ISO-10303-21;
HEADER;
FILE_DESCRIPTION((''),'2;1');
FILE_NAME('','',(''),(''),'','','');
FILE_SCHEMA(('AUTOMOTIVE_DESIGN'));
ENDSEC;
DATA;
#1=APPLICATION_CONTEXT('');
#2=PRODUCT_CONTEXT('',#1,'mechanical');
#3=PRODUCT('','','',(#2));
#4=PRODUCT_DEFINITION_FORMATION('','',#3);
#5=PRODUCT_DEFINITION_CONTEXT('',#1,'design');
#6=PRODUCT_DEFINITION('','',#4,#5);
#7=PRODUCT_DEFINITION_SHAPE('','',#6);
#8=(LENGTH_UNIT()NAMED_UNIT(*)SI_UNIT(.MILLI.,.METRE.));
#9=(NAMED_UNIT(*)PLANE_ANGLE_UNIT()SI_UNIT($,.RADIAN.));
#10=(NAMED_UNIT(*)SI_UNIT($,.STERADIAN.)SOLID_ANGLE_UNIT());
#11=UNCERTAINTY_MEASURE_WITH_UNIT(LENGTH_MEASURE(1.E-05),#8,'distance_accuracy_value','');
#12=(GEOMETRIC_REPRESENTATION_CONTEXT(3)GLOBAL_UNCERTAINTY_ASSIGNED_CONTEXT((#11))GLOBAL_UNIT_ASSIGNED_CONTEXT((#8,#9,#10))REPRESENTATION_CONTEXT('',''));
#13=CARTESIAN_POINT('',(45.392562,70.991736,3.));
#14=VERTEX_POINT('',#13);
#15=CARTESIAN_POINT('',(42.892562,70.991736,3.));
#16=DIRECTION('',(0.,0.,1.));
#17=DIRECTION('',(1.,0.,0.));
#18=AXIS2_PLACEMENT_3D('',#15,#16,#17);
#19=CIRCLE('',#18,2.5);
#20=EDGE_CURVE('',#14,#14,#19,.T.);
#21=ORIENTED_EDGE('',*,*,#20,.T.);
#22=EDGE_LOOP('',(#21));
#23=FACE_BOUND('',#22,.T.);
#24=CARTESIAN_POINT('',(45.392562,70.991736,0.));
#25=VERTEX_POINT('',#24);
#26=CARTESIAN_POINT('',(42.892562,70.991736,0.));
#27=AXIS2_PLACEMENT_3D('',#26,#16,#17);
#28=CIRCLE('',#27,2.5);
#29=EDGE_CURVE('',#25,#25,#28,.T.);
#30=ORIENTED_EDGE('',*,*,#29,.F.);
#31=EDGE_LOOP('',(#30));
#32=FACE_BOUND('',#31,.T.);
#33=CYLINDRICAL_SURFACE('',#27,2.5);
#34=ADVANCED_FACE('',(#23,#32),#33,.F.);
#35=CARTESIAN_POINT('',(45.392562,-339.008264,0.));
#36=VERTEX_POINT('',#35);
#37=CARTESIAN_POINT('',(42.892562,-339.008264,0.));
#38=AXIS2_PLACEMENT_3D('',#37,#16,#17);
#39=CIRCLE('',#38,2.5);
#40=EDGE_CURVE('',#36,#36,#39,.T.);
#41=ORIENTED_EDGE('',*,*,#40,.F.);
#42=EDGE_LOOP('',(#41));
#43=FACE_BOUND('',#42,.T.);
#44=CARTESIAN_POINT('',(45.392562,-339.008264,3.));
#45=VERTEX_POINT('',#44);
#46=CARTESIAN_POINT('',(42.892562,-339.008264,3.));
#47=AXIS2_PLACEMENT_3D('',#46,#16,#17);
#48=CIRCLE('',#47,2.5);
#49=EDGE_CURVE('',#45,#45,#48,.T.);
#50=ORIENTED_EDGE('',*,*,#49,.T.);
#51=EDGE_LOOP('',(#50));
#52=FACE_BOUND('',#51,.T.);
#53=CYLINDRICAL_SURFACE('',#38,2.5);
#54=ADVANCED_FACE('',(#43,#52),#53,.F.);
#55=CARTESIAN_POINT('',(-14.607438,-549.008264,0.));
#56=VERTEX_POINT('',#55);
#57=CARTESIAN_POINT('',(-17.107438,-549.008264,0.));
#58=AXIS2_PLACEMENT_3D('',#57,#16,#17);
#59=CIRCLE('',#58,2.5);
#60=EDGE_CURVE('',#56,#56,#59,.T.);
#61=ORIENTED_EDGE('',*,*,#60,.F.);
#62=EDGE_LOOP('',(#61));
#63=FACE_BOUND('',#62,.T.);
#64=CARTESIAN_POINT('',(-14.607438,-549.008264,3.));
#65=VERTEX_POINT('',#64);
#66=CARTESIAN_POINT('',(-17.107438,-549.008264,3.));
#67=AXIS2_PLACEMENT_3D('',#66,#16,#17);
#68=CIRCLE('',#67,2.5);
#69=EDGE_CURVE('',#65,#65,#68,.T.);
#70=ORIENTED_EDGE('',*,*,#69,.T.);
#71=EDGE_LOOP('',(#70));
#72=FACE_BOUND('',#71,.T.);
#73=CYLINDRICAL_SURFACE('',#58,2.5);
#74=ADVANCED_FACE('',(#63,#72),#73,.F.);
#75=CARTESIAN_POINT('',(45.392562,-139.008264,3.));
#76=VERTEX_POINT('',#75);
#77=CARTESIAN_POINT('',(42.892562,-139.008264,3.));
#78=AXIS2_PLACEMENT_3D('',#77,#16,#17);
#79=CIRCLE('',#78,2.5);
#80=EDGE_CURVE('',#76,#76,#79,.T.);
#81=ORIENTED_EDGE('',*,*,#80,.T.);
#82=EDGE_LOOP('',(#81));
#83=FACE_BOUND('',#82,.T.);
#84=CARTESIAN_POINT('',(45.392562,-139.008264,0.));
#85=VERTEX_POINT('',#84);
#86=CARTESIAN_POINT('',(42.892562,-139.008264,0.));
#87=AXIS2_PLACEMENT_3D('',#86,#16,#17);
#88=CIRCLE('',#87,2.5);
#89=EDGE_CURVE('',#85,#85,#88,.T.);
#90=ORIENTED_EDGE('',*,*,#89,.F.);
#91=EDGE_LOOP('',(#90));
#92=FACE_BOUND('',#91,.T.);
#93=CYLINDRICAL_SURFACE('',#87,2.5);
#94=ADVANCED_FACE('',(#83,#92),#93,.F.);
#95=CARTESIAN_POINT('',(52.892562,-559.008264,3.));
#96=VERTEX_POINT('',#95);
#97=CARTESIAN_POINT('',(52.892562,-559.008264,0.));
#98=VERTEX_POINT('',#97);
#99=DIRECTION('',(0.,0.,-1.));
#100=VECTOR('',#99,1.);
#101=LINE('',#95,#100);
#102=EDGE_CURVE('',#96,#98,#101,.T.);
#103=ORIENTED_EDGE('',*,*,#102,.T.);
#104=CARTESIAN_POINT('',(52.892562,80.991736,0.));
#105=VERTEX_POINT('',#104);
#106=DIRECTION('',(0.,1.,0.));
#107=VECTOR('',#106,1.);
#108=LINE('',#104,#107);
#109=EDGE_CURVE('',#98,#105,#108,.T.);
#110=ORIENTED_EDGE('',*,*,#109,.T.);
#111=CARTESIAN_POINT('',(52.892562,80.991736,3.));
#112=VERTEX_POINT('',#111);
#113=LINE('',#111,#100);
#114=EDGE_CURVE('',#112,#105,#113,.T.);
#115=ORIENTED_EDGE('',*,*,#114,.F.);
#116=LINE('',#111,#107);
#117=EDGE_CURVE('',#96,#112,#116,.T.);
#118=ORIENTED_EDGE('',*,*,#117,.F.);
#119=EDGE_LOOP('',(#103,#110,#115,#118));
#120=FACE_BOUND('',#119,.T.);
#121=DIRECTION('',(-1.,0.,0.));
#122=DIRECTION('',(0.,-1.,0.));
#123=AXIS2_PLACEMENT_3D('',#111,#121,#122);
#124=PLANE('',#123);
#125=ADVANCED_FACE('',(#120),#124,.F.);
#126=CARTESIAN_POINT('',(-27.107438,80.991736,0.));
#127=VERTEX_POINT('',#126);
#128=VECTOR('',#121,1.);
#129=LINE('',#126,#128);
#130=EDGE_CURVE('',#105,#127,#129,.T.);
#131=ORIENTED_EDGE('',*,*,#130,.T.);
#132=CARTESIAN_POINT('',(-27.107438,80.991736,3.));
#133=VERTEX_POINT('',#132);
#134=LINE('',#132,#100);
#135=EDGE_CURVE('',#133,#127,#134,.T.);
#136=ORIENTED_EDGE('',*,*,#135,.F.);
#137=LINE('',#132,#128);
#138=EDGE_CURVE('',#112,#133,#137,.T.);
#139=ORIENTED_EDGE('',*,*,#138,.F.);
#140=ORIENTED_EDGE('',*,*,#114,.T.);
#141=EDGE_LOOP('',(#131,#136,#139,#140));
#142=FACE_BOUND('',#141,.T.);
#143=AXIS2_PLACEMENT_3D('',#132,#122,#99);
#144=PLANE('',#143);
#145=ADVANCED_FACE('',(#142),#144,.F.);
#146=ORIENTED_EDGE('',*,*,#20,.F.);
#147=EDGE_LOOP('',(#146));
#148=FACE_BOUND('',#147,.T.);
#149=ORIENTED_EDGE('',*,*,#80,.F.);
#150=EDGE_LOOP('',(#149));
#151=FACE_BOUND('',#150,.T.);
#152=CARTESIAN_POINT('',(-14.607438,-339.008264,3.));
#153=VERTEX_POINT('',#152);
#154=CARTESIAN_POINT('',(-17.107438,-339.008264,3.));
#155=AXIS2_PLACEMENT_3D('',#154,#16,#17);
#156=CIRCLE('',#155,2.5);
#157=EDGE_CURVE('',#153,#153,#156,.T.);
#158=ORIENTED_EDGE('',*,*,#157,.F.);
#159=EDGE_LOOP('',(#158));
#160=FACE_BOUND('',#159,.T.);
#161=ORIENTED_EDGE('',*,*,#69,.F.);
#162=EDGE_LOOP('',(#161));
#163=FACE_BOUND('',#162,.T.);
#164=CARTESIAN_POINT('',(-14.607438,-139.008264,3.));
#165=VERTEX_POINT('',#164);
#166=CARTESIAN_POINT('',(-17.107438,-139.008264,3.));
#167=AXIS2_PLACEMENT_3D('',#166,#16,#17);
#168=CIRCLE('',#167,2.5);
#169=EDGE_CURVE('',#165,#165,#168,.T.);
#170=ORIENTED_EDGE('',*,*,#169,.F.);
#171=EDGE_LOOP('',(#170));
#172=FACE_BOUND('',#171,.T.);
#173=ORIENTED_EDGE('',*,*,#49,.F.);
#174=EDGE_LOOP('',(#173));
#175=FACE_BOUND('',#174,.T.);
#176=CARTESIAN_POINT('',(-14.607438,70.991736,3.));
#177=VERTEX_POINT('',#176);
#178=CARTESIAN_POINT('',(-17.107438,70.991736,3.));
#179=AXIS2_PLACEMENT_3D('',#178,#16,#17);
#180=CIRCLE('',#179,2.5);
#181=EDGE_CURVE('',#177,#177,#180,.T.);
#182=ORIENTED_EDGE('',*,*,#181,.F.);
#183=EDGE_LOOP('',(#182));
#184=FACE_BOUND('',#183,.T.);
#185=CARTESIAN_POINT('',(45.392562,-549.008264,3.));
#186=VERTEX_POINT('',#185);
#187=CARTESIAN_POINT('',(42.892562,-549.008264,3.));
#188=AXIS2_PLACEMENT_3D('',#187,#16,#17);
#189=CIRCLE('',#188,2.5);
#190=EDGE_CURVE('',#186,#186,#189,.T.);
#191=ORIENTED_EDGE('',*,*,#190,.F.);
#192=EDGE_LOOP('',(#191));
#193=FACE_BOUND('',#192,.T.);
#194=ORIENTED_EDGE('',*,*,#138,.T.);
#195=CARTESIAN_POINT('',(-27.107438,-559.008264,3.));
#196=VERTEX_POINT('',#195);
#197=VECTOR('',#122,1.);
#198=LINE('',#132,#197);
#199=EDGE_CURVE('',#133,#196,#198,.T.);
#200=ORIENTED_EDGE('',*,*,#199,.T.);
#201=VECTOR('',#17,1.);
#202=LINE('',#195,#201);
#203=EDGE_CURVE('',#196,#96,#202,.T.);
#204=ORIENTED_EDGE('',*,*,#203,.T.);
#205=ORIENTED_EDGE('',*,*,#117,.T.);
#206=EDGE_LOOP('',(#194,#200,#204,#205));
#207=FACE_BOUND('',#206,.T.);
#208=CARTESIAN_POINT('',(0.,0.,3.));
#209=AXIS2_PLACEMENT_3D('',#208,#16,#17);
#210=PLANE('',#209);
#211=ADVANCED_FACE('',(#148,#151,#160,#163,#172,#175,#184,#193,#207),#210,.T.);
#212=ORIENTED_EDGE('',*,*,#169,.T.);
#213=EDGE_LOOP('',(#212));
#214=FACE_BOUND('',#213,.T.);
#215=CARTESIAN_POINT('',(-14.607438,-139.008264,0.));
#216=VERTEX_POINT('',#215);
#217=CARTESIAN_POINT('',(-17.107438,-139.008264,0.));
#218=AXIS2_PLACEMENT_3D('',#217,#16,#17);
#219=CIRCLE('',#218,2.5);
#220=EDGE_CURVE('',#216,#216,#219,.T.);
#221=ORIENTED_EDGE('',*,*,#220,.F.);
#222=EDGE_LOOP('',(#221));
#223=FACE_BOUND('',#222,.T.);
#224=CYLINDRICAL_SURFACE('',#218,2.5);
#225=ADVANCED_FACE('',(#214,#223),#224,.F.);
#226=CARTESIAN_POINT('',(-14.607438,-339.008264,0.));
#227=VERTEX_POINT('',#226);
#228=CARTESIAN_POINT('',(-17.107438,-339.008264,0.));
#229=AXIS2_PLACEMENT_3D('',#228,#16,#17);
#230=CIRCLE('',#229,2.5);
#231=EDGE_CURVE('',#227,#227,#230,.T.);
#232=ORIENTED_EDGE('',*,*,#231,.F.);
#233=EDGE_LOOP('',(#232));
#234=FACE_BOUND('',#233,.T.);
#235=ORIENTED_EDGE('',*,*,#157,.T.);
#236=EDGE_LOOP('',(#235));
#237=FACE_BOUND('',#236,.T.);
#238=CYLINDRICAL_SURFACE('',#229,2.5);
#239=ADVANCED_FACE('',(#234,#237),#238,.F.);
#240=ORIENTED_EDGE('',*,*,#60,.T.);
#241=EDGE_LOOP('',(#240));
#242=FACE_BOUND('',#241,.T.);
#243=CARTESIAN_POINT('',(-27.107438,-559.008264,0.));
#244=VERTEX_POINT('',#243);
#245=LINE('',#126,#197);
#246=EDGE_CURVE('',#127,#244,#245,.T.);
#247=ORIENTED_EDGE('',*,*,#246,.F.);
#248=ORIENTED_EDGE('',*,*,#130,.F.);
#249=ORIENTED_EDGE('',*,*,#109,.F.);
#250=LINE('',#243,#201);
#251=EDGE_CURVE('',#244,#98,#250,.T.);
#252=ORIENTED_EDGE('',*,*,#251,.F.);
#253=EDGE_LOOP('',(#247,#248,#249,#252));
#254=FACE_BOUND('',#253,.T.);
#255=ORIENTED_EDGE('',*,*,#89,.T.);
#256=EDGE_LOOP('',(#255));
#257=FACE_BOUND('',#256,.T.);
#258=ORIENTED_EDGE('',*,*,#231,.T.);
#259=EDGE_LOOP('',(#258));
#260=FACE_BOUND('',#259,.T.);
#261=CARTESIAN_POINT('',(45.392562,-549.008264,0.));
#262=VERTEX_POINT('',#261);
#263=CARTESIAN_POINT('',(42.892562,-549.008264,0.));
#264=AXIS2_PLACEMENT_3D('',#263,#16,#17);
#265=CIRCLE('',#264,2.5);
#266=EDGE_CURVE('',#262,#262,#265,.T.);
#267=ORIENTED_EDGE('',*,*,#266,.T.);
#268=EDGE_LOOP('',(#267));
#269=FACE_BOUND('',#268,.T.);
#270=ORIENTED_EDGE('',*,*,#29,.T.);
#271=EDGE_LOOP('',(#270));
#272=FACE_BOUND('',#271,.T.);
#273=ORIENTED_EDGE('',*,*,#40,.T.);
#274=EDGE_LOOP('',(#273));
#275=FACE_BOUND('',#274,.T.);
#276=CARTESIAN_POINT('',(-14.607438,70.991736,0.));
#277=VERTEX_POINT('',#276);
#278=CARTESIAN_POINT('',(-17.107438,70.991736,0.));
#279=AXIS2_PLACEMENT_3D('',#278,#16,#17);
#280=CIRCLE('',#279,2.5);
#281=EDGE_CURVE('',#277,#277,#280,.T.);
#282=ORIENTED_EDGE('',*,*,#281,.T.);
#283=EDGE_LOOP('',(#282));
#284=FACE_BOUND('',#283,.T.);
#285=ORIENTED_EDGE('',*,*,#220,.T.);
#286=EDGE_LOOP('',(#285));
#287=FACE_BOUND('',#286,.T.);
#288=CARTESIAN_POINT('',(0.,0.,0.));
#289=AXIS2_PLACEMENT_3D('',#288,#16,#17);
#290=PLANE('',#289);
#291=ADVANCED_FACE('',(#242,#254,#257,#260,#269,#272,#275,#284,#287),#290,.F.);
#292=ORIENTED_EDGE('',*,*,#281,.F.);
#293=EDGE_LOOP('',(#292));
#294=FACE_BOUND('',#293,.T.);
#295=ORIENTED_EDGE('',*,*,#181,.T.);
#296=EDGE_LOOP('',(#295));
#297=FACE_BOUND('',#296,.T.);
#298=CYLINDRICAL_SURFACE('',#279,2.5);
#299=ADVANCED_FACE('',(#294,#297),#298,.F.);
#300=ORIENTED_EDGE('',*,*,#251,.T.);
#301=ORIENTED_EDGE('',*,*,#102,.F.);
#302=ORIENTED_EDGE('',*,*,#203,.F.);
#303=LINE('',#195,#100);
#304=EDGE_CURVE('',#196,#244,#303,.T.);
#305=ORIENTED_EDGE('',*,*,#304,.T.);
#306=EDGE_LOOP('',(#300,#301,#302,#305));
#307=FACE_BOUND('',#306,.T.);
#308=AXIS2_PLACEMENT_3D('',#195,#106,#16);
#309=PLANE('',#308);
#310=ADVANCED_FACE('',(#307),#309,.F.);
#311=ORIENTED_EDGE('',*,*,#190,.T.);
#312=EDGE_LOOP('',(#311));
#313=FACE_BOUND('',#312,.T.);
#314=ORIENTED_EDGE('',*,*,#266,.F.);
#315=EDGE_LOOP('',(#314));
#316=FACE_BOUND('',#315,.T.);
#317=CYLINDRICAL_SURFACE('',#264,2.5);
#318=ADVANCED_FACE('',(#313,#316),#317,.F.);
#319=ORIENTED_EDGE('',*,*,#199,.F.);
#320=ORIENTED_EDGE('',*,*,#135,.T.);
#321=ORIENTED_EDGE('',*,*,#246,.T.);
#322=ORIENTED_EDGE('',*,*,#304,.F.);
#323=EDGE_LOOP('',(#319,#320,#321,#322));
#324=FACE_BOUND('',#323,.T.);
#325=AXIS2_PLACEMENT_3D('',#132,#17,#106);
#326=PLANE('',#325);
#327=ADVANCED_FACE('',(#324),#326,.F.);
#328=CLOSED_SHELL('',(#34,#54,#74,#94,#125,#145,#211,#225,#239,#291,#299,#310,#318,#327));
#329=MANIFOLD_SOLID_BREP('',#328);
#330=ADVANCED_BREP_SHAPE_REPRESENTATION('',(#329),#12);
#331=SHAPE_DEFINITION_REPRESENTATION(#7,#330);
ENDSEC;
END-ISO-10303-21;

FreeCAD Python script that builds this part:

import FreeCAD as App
import Part
import Sketcher
Q = App.Units.Quantity


def add_polygon(sketch, points):
    """Adds a closed chain of lines whose ends are joined by coincident constraints."""
    first, n = sketch.GeometryCount, len(points)
    for a, b in zip(points, points[1:] + points[:1]):
        sketch.addGeometry(Part.LineSegment(App.Vector(*a, 0), App.Vector(*b, 0)), False)
    for i in range(n):
        sketch.addConstraint(Sketcher.Constraint("Coincident", first + i, 2, first + (i + 1) % n, 1))

doc = App.newDocument("Part")
body = doc.addObject("PartDesign::Body", "Body")

sketch1 = body.newObject("Sketcher::SketchObject", "Sketch")
sketch1.AttachmentSupport = (doc.getObject("XY_Plane"), [""])
sketch1.MapMode = "FlatFace"
add_polygon(sketch1, [(-27, 81), (-27, -559), (53, -559), (53, 81)])
sketch1.addConstraint(Sketcher.Constraint("Vertical", 0))
sketch1.addConstraint(Sketcher.Constraint("Horizontal", 1))
sketch1.addConstraint(Sketcher.Constraint("Vertical", 2))
sketch1.addConstraint(Sketcher.Constraint("Horizontal", 3))
sketch1.addConstraint(Sketcher.Constraint("DistanceX", 1, 1, 1, 2, Q("80 mm")))
sketch1.addConstraint(Sketcher.Constraint("DistanceY", 0, 2, 0, 1, Q("640 mm")))
sketch1.addConstraint(Sketcher.Constraint("DistanceX", 0, 2, -1, 1, Q("27.107438 mm")))
sketch1.addConstraint(Sketcher.Constraint("DistanceY", 0, 2, -1, 1, Q("559.008264 mm")))
pad1 = body.newObject("PartDesign::Pad", "Pad")
pad1.Profile = sketch1
pad1.Length = 3

sketch2 = body.newObject("Sketcher::SketchObject", "Sketch001")
sketch2.AttachmentSupport = (doc.getObject("XY_Plane"), [""])
sketch2.MapMode = "FlatFace"
sketch2.AttachmentOffset = App.Placement(App.Vector(0, 0, 3), App.Rotation())
sketch2.addGeometry(Part.Circle(App.Vector(42.9, -549, 0), App.Vector(0, 0, 1), 2.5), False)
sketch2.addGeometry(Part.Circle(App.Vector(-17.1, -549, 0), App.Vector(0, 0, 1), 2.5), False)
sketch2.addGeometry(Part.Circle(App.Vector(-17.1, -339, 0), App.Vector(0, 0, 1), 2.5), False)
sketch2.addGeometry(Part.Circle(App.Vector(-17.1, 71, 0), App.Vector(0, 0, 1), 2.5), False)
sketch2.addGeometry(Part.Circle(App.Vector(-17.1, -139, 0), App.Vector(0, 0, 1), 2.5), False)
sketch2.addGeometry(Part.Circle(App.Vector(42.9, 71, 0), App.Vector(0, 0, 1), 2.5), False)
sketch2.addGeometry(Part.Circle(App.Vector(42.9, -139, 0), App.Vector(0, 0, 1), 2.5), False)
sketch2.addGeometry(Part.Circle(App.Vector(42.9, -339, 0), App.Vector(0, 0, 1), 2.5), False)
sketch2.addConstraint(Sketcher.Constraint("Equal", 0, 1))
sketch2.addConstraint(Sketcher.Constraint("Equal", 1, 2))
sketch2.addConstraint(Sketcher.Constraint("Equal", 2, 3))
sketch2.addConstraint(Sketcher.Constraint("Equal", 3, 4))
sketch2.addConstraint(Sketcher.Constraint("Equal", 4, 5))
sketch2.addConstraint(Sketcher.Constraint("Equal", 5, 6))
sketch2.addConstraint(Sketcher.Constraint("Equal", 6, 7))
sketch2.addConstraint(Sketcher.Constraint("Horizontal", 0, 3, 1, 3))
sketch2.addConstraint(Sketcher.Constraint("Horizontal", 3, 3, 5, 3))
sketch2.addConstraint(Sketcher.Constraint("Horizontal", 4, 3, 6, 3))
sketch2.addConstraint(Sketcher.Constraint("Horizontal", 2, 3, 7, 3))
sketch2.addConstraint(Sketcher.Constraint("Vertical", 1, 3, 2, 3))
sketch2.addConstraint(Sketcher.Constraint("Vertical", 2, 3, 3, 3))
sketch2.addConstraint(Sketcher.Constraint("Vertical", 3, 3, 4, 3))
sketch2.addConstraint(Sketcher.Constraint("Vertical", 0, 3, 5, 3))
sketch2.addConstraint(Sketcher.Constraint("Vertical", 5, 3, 6, 3))
sketch2.addConstraint(Sketcher.Constraint("Vertical", 6, 3, 7, 3))
sketch2.addConstraint(Sketcher.Constraint("Diameter", 0, Q("5 mm")))
sketch2.addConstraint(Sketcher.Constraint("DistanceX", 1, 3, 0, 3, Q("60 mm")))
sketch2.addConstraint(Sketcher.Constraint("DistanceY", 1, 3, 2, 3, Q("210 mm")))
sketch2.addConstraint(Sketcher.Constraint("DistanceY", 2, 3, 3, 3, Q("410 mm")))
sketch2.addConstraint(Sketcher.Constraint("DistanceY", 2, 3, 4, 3, Q("200 mm")))
sketch2.addConstraint(Sketcher.Constraint("DistanceX", -1, 1, 0, 3, Q("42.892562 mm")))
sketch2.addConstraint(Sketcher.Constraint("DistanceY", 0, 3, -1, 1, Q("549.008264 mm")))
pocket1 = body.newObject("PartDesign::Pocket", "Pocket")
pocket1.Profile = sketch2
pocket1.Type = "ThroughAll"

doc.recompute()
